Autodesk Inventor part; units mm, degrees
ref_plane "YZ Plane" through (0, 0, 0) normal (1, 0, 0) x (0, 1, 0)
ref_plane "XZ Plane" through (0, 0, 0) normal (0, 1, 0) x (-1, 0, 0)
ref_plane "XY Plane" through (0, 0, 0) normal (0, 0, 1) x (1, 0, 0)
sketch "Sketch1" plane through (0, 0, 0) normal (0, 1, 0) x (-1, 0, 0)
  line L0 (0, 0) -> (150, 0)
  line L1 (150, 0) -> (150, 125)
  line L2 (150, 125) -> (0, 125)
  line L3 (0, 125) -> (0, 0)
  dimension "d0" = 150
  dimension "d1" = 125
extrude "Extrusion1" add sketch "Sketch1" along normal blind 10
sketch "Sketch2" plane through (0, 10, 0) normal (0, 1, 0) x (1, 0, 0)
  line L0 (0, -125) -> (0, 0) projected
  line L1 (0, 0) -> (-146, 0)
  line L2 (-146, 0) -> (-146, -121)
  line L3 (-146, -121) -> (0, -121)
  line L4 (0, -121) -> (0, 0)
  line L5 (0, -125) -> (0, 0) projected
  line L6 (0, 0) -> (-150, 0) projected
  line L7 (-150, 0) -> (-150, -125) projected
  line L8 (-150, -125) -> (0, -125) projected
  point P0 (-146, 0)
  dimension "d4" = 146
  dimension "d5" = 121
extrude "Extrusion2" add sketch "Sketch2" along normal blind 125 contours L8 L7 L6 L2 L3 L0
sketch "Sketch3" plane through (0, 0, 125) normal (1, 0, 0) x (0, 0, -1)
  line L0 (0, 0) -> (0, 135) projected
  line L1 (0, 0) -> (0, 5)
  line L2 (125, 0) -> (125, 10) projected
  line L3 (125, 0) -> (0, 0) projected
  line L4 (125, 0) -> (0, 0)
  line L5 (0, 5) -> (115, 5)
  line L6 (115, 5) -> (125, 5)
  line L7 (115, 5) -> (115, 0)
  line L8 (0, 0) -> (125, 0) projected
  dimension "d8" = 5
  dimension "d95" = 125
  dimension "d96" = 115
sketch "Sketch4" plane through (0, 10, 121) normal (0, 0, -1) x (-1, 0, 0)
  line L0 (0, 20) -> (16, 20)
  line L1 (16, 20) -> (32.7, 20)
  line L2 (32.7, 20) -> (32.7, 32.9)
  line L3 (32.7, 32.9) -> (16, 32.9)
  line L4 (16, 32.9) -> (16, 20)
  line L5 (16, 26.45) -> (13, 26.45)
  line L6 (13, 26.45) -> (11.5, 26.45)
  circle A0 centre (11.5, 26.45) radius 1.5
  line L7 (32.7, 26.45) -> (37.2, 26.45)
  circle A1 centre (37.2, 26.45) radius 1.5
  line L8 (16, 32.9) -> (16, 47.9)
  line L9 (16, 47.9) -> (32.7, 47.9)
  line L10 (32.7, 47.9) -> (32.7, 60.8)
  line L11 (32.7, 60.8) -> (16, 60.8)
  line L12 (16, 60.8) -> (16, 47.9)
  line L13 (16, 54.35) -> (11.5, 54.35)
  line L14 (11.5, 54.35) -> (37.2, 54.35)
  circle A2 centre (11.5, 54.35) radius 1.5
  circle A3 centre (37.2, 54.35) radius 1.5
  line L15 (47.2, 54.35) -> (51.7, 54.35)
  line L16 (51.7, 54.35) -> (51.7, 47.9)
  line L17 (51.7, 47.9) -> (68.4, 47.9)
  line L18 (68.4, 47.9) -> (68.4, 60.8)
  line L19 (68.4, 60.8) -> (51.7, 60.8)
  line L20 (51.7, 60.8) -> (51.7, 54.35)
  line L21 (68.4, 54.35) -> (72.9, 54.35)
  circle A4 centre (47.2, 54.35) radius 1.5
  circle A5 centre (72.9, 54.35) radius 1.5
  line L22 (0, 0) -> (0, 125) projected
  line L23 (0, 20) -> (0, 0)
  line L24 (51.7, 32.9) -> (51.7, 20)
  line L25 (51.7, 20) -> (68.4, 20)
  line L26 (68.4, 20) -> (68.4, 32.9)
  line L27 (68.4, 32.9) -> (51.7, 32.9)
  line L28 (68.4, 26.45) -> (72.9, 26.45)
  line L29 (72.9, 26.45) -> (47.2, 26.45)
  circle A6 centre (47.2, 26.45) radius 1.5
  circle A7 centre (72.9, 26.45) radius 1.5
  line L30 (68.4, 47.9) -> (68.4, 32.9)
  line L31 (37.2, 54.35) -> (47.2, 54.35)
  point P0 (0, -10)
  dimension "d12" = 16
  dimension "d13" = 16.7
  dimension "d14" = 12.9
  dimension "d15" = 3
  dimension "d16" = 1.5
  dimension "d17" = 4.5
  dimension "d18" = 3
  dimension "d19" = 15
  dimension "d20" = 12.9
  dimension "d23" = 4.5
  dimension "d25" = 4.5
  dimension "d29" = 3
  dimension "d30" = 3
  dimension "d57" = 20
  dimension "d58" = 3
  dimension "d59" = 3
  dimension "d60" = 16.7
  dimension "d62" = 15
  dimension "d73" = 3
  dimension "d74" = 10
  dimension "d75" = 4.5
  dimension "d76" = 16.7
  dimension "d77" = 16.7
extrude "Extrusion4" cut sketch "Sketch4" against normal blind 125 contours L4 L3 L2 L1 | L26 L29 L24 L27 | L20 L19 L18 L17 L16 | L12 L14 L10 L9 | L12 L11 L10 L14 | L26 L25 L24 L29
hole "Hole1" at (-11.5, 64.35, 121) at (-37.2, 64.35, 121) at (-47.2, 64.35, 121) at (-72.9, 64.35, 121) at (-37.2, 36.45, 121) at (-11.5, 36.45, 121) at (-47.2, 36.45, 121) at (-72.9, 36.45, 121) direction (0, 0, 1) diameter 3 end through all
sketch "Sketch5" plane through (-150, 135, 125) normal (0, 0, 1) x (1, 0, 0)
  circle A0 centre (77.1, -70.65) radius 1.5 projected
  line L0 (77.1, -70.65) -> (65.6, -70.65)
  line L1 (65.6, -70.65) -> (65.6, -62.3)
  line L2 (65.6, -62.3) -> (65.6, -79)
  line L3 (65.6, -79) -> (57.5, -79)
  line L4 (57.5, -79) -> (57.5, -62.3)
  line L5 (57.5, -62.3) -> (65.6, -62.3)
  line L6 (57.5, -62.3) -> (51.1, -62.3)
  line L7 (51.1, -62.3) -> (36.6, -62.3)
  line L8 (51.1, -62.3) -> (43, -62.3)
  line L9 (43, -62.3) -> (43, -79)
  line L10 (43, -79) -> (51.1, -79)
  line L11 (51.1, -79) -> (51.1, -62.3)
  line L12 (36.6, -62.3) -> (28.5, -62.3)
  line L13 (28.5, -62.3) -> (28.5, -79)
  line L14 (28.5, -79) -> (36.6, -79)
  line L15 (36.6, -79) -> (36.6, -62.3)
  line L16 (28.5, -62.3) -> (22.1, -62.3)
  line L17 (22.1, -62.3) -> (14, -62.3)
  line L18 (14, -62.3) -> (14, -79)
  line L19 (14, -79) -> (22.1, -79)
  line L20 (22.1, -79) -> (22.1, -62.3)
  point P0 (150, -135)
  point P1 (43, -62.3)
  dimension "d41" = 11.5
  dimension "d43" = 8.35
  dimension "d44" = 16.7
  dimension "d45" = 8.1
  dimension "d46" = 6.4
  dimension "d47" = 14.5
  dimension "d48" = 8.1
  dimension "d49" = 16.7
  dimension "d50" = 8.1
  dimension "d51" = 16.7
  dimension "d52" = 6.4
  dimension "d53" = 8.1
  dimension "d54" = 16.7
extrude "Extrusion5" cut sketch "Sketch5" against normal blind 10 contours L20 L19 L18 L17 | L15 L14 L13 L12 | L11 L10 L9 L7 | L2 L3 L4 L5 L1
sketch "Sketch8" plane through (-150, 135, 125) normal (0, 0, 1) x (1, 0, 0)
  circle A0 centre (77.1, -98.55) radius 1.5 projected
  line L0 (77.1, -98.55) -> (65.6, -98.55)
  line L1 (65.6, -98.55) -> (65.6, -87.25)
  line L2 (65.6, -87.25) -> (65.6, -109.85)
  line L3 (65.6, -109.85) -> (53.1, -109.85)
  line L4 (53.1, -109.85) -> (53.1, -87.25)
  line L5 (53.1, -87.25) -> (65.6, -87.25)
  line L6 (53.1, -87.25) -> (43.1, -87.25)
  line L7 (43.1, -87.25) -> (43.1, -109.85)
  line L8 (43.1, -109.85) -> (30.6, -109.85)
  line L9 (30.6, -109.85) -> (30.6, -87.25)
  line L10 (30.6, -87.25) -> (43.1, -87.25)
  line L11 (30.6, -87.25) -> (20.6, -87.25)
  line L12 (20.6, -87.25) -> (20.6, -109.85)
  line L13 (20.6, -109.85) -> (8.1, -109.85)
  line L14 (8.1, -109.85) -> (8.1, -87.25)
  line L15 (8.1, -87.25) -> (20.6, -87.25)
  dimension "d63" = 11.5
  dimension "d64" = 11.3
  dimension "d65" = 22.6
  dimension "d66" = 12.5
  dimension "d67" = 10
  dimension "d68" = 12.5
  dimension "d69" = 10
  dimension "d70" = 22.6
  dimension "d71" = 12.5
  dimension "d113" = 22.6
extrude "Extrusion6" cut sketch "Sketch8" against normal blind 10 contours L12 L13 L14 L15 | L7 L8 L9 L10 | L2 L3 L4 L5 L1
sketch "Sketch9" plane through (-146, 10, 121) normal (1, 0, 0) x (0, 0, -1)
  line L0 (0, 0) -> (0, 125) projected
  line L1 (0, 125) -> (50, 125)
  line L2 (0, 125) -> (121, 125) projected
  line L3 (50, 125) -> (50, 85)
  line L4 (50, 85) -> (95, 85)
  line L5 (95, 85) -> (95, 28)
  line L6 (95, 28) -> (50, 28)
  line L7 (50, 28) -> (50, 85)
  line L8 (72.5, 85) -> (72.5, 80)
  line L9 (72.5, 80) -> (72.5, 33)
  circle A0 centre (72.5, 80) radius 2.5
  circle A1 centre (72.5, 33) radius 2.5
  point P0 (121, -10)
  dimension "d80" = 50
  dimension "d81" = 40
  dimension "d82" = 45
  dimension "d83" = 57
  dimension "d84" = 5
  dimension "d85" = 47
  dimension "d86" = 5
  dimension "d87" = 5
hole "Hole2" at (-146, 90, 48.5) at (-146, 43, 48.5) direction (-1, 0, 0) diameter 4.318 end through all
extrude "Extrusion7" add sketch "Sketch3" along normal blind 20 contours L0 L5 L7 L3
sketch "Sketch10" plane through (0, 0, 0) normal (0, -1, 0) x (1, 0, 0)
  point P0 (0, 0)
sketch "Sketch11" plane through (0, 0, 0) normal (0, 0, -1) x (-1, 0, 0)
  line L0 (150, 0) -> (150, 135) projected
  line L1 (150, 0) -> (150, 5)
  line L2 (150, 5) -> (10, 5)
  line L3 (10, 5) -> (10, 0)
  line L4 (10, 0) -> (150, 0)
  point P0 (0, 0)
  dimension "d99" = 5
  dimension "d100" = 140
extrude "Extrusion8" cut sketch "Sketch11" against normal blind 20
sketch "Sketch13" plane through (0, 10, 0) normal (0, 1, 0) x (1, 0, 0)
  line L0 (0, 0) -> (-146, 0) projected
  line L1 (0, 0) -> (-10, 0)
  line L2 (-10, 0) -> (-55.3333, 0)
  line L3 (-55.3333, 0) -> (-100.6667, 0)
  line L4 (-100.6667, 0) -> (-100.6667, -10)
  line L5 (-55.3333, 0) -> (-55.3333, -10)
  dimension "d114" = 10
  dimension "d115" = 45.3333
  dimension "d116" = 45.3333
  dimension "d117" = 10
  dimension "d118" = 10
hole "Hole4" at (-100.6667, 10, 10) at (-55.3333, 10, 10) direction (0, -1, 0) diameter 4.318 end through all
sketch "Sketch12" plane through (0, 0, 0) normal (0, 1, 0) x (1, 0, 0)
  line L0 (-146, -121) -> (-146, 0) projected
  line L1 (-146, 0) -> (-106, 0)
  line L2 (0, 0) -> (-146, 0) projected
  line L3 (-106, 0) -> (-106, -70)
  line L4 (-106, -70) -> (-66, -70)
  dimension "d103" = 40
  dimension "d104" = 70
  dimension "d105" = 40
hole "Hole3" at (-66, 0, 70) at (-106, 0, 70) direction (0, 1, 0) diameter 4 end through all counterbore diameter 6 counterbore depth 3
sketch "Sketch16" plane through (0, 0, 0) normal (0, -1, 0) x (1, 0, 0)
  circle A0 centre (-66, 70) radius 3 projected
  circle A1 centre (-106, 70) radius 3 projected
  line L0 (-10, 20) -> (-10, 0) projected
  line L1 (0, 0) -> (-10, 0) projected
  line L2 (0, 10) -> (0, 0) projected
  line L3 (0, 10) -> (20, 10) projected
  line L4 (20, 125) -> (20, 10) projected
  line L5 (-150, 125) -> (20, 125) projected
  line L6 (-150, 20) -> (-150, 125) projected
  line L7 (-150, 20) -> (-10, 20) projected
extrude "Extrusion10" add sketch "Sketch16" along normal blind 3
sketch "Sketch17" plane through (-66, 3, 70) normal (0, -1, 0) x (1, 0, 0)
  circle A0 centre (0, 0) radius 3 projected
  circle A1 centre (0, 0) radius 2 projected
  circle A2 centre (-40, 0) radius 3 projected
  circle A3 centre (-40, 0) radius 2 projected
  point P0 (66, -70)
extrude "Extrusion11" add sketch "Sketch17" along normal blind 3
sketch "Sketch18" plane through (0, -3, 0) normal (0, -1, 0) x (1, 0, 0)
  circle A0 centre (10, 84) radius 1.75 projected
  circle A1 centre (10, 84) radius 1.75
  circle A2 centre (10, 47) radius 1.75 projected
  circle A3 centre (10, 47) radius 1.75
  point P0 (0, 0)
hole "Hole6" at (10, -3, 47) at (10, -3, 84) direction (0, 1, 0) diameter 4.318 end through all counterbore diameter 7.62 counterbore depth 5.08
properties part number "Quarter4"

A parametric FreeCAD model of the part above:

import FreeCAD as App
import Part
import Sketcher

V = App.Vector

doc = App.newDocument("Part")
body = doc.addObject("PartDesign::Body", "Body")

# Sketch on XZ plane
sketch1 = doc.addObject("Sketcher::SketchObject", "Sketch")
body.addObject(sketch1)
sketch1.AttachmentSupport = (doc.XZ_Plane, [""])
sketch1.MapMode = "FlatFace"
sketch1.addGeometry([
    Part.LineSegment(V(0, 125, 0), V(0, 0, 0)),
    Part.LineSegment(V(0, 0, 0), V(-150, 0, 0)),
    Part.LineSegment(V(-150, 0, 0), V(-150, 125, 0)),
    Part.LineSegment(V(-150, 125, 0), V(0, 125, 0)),
], False)
sketch1.addConstraint([
    Sketcher.Constraint("Coincident", 0, 2, 1, 1),
    Sketcher.Constraint("Coincident", 1, 2, 2, 1),
    Sketcher.Constraint("Coincident", 2, 2, 3, 1),
    Sketcher.Constraint("Coincident", 3, 2, 0, 1),
    Sketcher.Constraint("Vertical", 0),
    Sketcher.Constraint("Horizontal", 1),
    Sketcher.Constraint("Vertical", 2),
    Sketcher.Constraint("Horizontal", 3),
    Sketcher.Constraint("Coincident", 0, 2, -1, 1),
    Sketcher.Constraint("DistanceX", 1, 2, 1, 1, 150.0),
    Sketcher.Constraint("DistanceY", 0, 2, 0, 1, 125.0),
])
pad1 = doc.addObject("PartDesign::Pad", "Pad")
body.addObject(pad1)
pad1.Profile = sketch1
pad1.Length = 10
pad1.Reversed = True

# Sketch on XZ plane
sketch2 = doc.addObject("Sketcher::SketchObject", "Sketch001")
body.addObject(sketch2)
sketch2.AttachmentSupport = (doc.XZ_Plane, [""])
sketch2.MapMode = "FlatFace"
sketch2.AttachmentOffset = App.Placement(V(0, 0, -10), App.Rotation())
sketch2.addGeometry([
    Part.LineSegment(V(-150, 125, 0), V(0, 125, 0)),  # 0
    Part.LineSegment(V(0, 125, 0), V(0, 121, 0)),  # 1
    Part.LineSegment(V(0, 121, 0), V(-146, 121, 0)),  # 2
    Part.LineSegment(V(-146, 121, 0), V(-146, 0, 0)),  # 3
    Part.LineSegment(V(-146, 0, 0), V(-150, 0, 0)),  # 4
    Part.LineSegment(V(-150, 0, 0), V(-150, 125, 0)),  # 5
], False)
sketch2.addConstraint([
    Sketcher.Constraint("Coincident", 0, 2, 1, 1),
    Sketcher.Constraint("Coincident", 1, 2, 2, 1),
    Sketcher.Constraint("Coincident", 2, 2, 3, 1),
    Sketcher.Constraint("Coincident", 3, 2, 4, 1),
    Sketcher.Constraint("Coincident", 4, 2, 5, 1),
    Sketcher.Constraint("Coincident", 5, 2, 0, 1),
    Sketcher.Constraint("Horizontal", 0),
    Sketcher.Constraint("Vertical", 1),
    Sketcher.Constraint("Horizontal", 2),
    Sketcher.Constraint("Vertical", 3),
    Sketcher.Constraint("Horizontal", 4),
    Sketcher.Constraint("Vertical", 5),
    Sketcher.Constraint("PointOnObject", 0, 2, -2),
    Sketcher.Constraint("PointOnObject", 3, 2, -1),
    Sketcher.Constraint("Equal", 4, 1),
    Sketcher.Constraint("DistanceX", 2, 2, 2, 1, 146.0),
    Sketcher.Constraint("DistanceY", 3, 2, 3, 1, 121.0),
    Sketcher.Constraint("DistanceX", 0, 1, 0, 2, 150.0),
])
pad2 = doc.addObject("PartDesign::Pad", "Pad001")
body.addObject(pad2)
pad2.Profile = sketch2
pad2.Length = 125
pad2.Reversed = True

# Sketch on XY plane
sketch3 = doc.addObject("Sketcher::SketchObject", "Sketch002")
body.addObject(sketch3)
sketch3.AttachmentSupport = (doc.XY_Plane, [""])
sketch3.MapMode = "FlatFace"
sketch3.AttachmentOffset = App.Placement(V(0, 0, 121), App.Rotation())
sketch3.addGeometry([
    Part.LineSegment(V(-16, 43, 0), V(-16, 30, 0)),  # 0
    Part.LineSegment(V(-16, 30, 0), V(-33, 30, 0)),  # 1
    Part.LineSegment(V(-33, 30, 0), V(-33, 43, 0)),  # 2
    Part.LineSegment(V(-33, 43, 0), V(-16, 43, 0)),  # 3
    Part.LineSegment(V(-68, 43, 0), V(-52, 43, 0)),  # 4
    Part.LineSegment(V(-52, 43, 0), V(-52, 30, 0)),  # 5
    Part.LineSegment(V(-52, 30, 0), V(-68, 30, 0)),  # 6
    Part.LineSegment(V(-68, 30, 0), V(-68, 43, 0)),  # 7
    Part.LineSegment(V(-52, 71, 0), V(-52, 58, 0)),  # 8
    Part.LineSegment(V(-52, 58, 0), V(-68, 58, 0)),  # 9
    Part.LineSegment(V(-68, 58, 0), V(-68, 71, 0)),  # 10
    Part.LineSegment(V(-68, 71, 0), V(-52, 71, 0)),  # 11
    Part.LineSegment(V(-16, 58, 0), V(-33, 58, 0)),  # 12
    Part.LineSegment(V(-33, 58, 0), V(-33, 71, 0)),  # 13
    Part.LineSegment(V(-33, 71, 0), V(-16, 71, 0)),  # 14
    Part.LineSegment(V(-16, 71, 0), V(-16, 58, 0)),  # 15
], False)
sketch3.addConstraint([
    Sketcher.Constraint("Coincident", 0, 2, 1, 1),
    Sketcher.Constraint("Coincident", 1, 2, 2, 1),
    Sketcher.Constraint("Coincident", 2, 2, 3, 1),
    Sketcher.Constraint("Coincident", 3, 2, 0, 1),
    Sketcher.Constraint("Coincident", 4, 2, 5, 1),
    Sketcher.Constraint("Coincident", 5, 2, 6, 1),
    Sketcher.Constraint("Coincident", 6, 2, 7, 1),
    Sketcher.Constraint("Coincident", 7, 2, 4, 1),
    Sketcher.Constraint("Coincident", 8, 2, 9, 1),
    Sketcher.Constraint("Coincident", 9, 2, 10, 1),
    Sketcher.Constraint("Coincident", 10, 2, 11, 1),
    Sketcher.Constraint("Coincident", 11, 2, 8, 1),
    Sketcher.Constraint("Coincident", 12, 2, 13, 1),
    Sketcher.Constraint("Coincident", 13, 2, 14, 1),
    Sketcher.Constraint("Coincident", 14, 2, 15, 1),
    Sketcher.Constraint("Coincident", 15, 2, 12, 1),
    Sketcher.Constraint("Vertical", 0),
    Sketcher.Constraint("Horizontal", 1),
    Sketcher.Constraint("Vertical", 2),
    Sketcher.Constraint("Horizontal", 3),
    Sketcher.Constraint("Horizontal", 4),
    Sketcher.Constraint("Vertical", 5),
    Sketcher.Constraint("Horizontal", 6),
    Sketcher.Constraint("Vertical", 7),
    Sketcher.Constraint("Vertical", 8),
    Sketcher.Constraint("Horizontal", 9),
    Sketcher.Constraint("Vertical", 10),
    Sketcher.Constraint("Horizontal", 11),
    Sketcher.Constraint("Horizontal", 12),
    Sketcher.Constraint("Vertical", 13),
    Sketcher.Constraint("Horizontal", 14),
    Sketcher.Constraint("Vertical", 15),
    Sketcher.Constraint("Horizontal", 3, 2, 4, 2),
    Sketcher.Constraint("Horizontal", 1, 2, 5, 2),
    Sketcher.Constraint("Horizontal", 9, 2, 12, 2),
    Sketcher.Constraint("Horizontal", 11, 2, 13, 2),
    Sketcher.Constraint("Vertical", 5, 2, 8, 2),
    Sketcher.Constraint("Vertical", 7, 2, 9, 2),
    Sketcher.Constraint("Vertical", 2, 2, 12, 2),
    Sketcher.Constraint("Vertical", 3, 2, 14, 2),
    Sketcher.Constraint("Equal", 3, 4),
    Sketcher.Constraint("Equal", 7, 8),
    Sketcher.Constraint("DistanceX", 1, 2, 1, 1, 16.7),
    Sketcher.Constraint("DistanceY", 0, 2, 0, 1, 12.9),
    Sketcher.Constraint("DistanceX", 0, 2, -1, 1, 16.0),
    Sketcher.Constraint("DistanceY", 4, 2, 8, 2, 15.0),
    Sketcher.Constraint("DistanceY", -1, 1, 0, 2, 30.0),
    Sketcher.Constraint("DistanceX", 4, 2, 2, 2, 19.0),
])
pocket1 = doc.addObject("PartDesign::Pocket", "Pocket")
body.addObject(pocket1)
pocket1.Profile = sketch3
pocket1.Length = 125
pocket1.Reversed = True

# Sketch on XY plane
sketch4 = doc.addObject("Sketcher::SketchObject", "Sketch003")
body.addObject(sketch4)
sketch4.AttachmentSupport = (doc.XY_Plane, [""])
sketch4.MapMode = "FlatFace"
sketch4.AttachmentOffset = App.Placement(V(0, 0, 121), App.Rotation())
sketch4.addGeometry([
    Part.Circle(V(-11.5, 64.3, 0), V(0, 0, 1), 1.5),  # 0
    Part.Circle(V(-37.2, 64.3, 0), V(0, 0, 1), 1.5),  # 1
    Part.Circle(V(-47.2, 64.3, 0), V(0, 0, 1), 1.5),  # 2
    Part.Circle(V(-72.9, 64.3, 0), V(0, 0, 1), 1.5),  # 3
    Part.Circle(V(-37.2, 36.5, 0), V(0, 0, 1), 1.5),  # 4
    Part.Circle(V(-11.5, 36.5, 0), V(0, 0, 1), 1.5),  # 5
    Part.Circle(V(-47.2, 36.5, 0), V(0, 0, 1), 1.5),  # 6
    Part.Circle(V(-72.9, 36.5, 0), V(0, 0, 1), 1.5),  # 7
], False)
sketch4.addConstraint([
    Sketcher.Constraint("Equal", 0, 1),
    Sketcher.Constraint("Equal", 1, 2),
    Sketcher.Constraint("Equal", 2, 3),
    Sketcher.Constraint("Equal", 3, 4),
    Sketcher.Constraint("Equal", 4, 5),
    Sketcher.Constraint("Equal", 5, 6),
    Sketcher.Constraint("Equal", 6, 7),
    Sketcher.Constraint("Horizontal", 0, 3, 1, 3),
    Sketcher.Constraint("Horizontal", 1, 3, 2, 3),
    Sketcher.Constraint("Horizontal", 2, 3, 3, 3),
    Sketcher.Constraint("Horizontal", 4, 3, 5, 3),
    Sketcher.Constraint("Horizontal", 5, 3, 6, 3),
    Sketcher.Constraint("Horizontal", 6, 3, 7, 3),
    Sketcher.Constraint("Vertical", 1, 3, 4, 3),
    Sketcher.Constraint("Vertical", 0, 3, 5, 3),
    Sketcher.Constraint("Vertical", 2, 3, 6, 3),
    Sketcher.Constraint("Vertical", 3, 3, 7, 3),
    Sketcher.Constraint("Diameter", 0, 3.0),
    Sketcher.Constraint("DistanceX", 2, 3, 1, 3, 10.0),
    Sketcher.Constraint("DistanceX", 0, 3, -1, 1, 11.5),
    Sketcher.Constraint("DistanceX", 1, 3, -1, 1, 37.2),
    Sketcher.Constraint("DistanceX", 3, 3, -1, 1, 72.9),
    Sketcher.Constraint("DistanceY", 4, 3, 1, 3, 27.9),
    Sketcher.Constraint("DistanceY", -1, 1, 0, 3, 64.35),
])
doc.recompute()
hole = doc.addObject("PartDesign::Hole", "Hole")
body.addObject(hole)
hole.Profile = sketch4
hole.ThreadType = "None"
hole.Diameter = 3
hole.DepthType = "ThroughAll"
hole.Reversed = True

# Sketch on XY plane
sketch5 = doc.addObject("Sketcher::SketchObject", "Sketch004")
body.addObject(sketch5)
sketch5.AttachmentSupport = (doc.XY_Plane, [""])
sketch5.MapMode = "FlatFace"
sketch5.AttachmentOffset = App.Placement(V(0, 0, 125), App.Rotation())
sketch5.addGeometry([
    Part.LineSegment(V(-128, 56, 0), V(-128, 73, 0)),  # 0
    Part.LineSegment(V(-128, 73, 0), V(-136, 73, 0)),  # 1
    Part.LineSegment(V(-136, 73, 0), V(-136, 56, 0)),  # 2
    Part.LineSegment(V(-136, 56, 0), V(-128, 56, 0)),  # 3
    Part.LineSegment(V(-113, 56, 0), V(-113, 73, 0)),  # 4
    Part.LineSegment(V(-113, 73, 0), V(-122, 73, 0)),  # 5
    Part.LineSegment(V(-122, 73, 0), V(-122, 56, 0)),  # 6
    Part.LineSegment(V(-122, 56, 0), V(-113, 56, 0)),  # 7
    Part.LineSegment(V(-99, 56, 0), V(-99, 73, 0)),  # 8
    Part.LineSegment(V(-99, 73, 0), V(-107, 73, 0)),  # 9
    Part.LineSegment(V(-107, 73, 0), V(-107, 56, 0)),  # 10
    Part.LineSegment(V(-107, 56, 0), V(-99, 56, 0)),  # 11
    Part.LineSegment(V(-84, 56, 0), V(-84, 73, 0)),  # 12
    Part.LineSegment(V(-84, 73, 0), V(-92, 73, 0)),  # 13
    Part.LineSegment(V(-92, 73, 0), V(-92, 56, 0)),  # 14
    Part.LineSegment(V(-92, 56, 0), V(-84, 56, 0)),  # 15
], False)
sketch5.addConstraint([
    Sketcher.Constraint("Coincident", 0, 2, 1, 1),
    Sketcher.Constraint("Coincident", 1, 2, 2, 1),
    Sketcher.Constraint("Coincident", 2, 2, 3, 1),
    Sketcher.Constraint("Coincident", 3, 2, 0, 1),
    Sketcher.Constraint("Coincident", 4, 2, 5, 1),
    Sketcher.Constraint("Coincident", 5, 2, 6, 1),
    Sketcher.Constraint("Coincident", 6, 2, 7, 1),
    Sketcher.Constraint("Coincident", 7, 2, 4, 1),
    Sketcher.Constraint("Coincident", 8, 2, 9, 1),
    Sketcher.Constraint("Coincident", 9, 2, 10, 1),
    Sketcher.Constraint("Coincident", 10, 2, 11, 1),
    Sketcher.Constraint("Coincident", 11, 2, 8, 1),
    Sketcher.Constraint("Coincident", 12, 2, 13, 1),
    Sketcher.Constraint("Coincident", 13, 2, 14, 1),
    Sketcher.Constraint("Coincident", 14, 2, 15, 1),
    Sketcher.Constraint("Coincident", 15, 2, 12, 1),
    Sketcher.Constraint("Vertical", 0),
    Sketcher.Constraint("Horizontal", 1),
    Sketcher.Constraint("Vertical", 2),
    Sketcher.Constraint("Horizontal", 3),
    Sketcher.Constraint("Vertical", 4),
    Sketcher.Constraint("Horizontal", 5),
    Sketcher.Constraint("Vertical", 6),
    Sketcher.Constraint("Horizontal", 7),
    Sketcher.Constraint("Vertical", 8),
    Sketcher.Constraint("Horizontal", 9),
    Sketcher.Constraint("Vertical", 10),
    Sketcher.Constraint("Horizontal", 11),
    Sketcher.Constraint("Vertical", 12),
    Sketcher.Constraint("Horizontal", 13),
    Sketcher.Constraint("Vertical", 14),
    Sketcher.Constraint("Horizontal", 15),
    Sketcher.Constraint("Horizontal", 1, 2, 4, 2),
    Sketcher.Constraint("Horizontal", 3, 2, 6, 2),
    Sketcher.Constraint("Horizontal", 5, 2, 8, 2),
    Sketcher.Constraint("Horizontal", 7, 2, 10, 2),
    Sketcher.Constraint("Horizontal", 9, 2, 12, 2),
    Sketcher.Constraint("Horizontal", 11, 2, 14, 2),
    Sketcher.Constraint("Equal", 3, 5),
    Sketcher.Constraint("Equal", 7, 9),
    Sketcher.Constraint("Equal", 11, 13),
    Sketcher.Constraint("DistanceX", 1, 2, 1, 1, 8.1),
    Sketcher.Constraint("DistanceY", 0, 1, 0, 2, 16.7),
    Sketcher.Constraint("DistanceX", 0, 2, 4, 2, 14.5),
    Sketcher.Constraint("DistanceX", 4, 2, 8, 2, 14.5),
    Sketcher.Constraint("DistanceX", 8, 2, 12, 2, 14.5),
    Sketcher.Constraint("DistanceX", 1, 2, -1, 1, 136.0),
    Sketcher.Constraint("DistanceY", -1, 1, 2, 2, 56.0),
])
pocket2 = doc.addObject("PartDesign::Pocket", "Pocket001")
body.addObject(pocket2)
pocket2.Profile = sketch5
pocket2.Length = 10

# Sketch on XY plane
sketch6 = doc.addObject("Sketcher::SketchObject", "Sketch005")
body.addObject(sketch6)
sketch6.AttachmentSupport = (doc.XY_Plane, [""])
sketch6.MapMode = "FlatFace"
sketch6.AttachmentOffset = App.Placement(V(0, 0, 125), App.Rotation())
sketch6.addGeometry([
    Part.LineSegment(V(-129, 25, 0), V(-129, 48, 0)),  # 0
    Part.LineSegment(V(-129, 48, 0), V(-142, 48, 0)),  # 1
    Part.LineSegment(V(-142, 48, 0), V(-142, 25, 0)),  # 2
    Part.LineSegment(V(-142, 25, 0), V(-129, 25, 0)),  # 3
    Part.LineSegment(V(-107, 25, 0), V(-107, 48, 0)),  # 4
    Part.LineSegment(V(-107, 48, 0), V(-119, 48, 0)),  # 5
    Part.LineSegment(V(-119, 48, 0), V(-119, 25, 0)),  # 6
    Part.LineSegment(V(-119, 25, 0), V(-107, 25, 0)),  # 7
    Part.LineSegment(V(-84, 25, 0), V(-84, 48, 0)),  # 8
    Part.LineSegment(V(-84, 48, 0), V(-97, 48, 0)),  # 9
    Part.LineSegment(V(-97, 48, 0), V(-97, 25, 0)),  # 10
    Part.LineSegment(V(-97, 25, 0), V(-84, 25, 0)),  # 11
], False)
sketch6.addConstraint([
    Sketcher.Constraint("Coincident", 0, 2, 1, 1),
    Sketcher.Constraint("Coincident", 1, 2, 2, 1),
    Sketcher.Constraint("Coincident", 2, 2, 3, 1),
    Sketcher.Constraint("Coincident", 3, 2, 0, 1),
    Sketcher.Constraint("Coincident", 4, 2, 5, 1),
    Sketcher.Constraint("Coincident", 5, 2, 6, 1),
    Sketcher.Constraint("Coincident", 6, 2, 7, 1),
    Sketcher.Constraint("Coincident", 7, 2, 4, 1),
    Sketcher.Constraint("Coincident", 8, 2, 9, 1),
    Sketcher.Constraint("Coincident", 9, 2, 10, 1),
    Sketcher.Constraint("Coincident", 10, 2, 11, 1),
    Sketcher.Constraint("Coincident", 11, 2, 8, 1),
    Sketcher.Constraint("Vertical", 0),
    Sketcher.Constraint("Horizontal", 1),
    Sketcher.Constraint("Vertical", 2),
    Sketcher.Constraint("Horizontal", 3),
    Sketcher.Constraint("Vertical", 4),
    Sketcher.Constraint("Horizontal", 5),
    Sketcher.Constraint("Vertical", 6),
    Sketcher.Constraint("Horizontal", 7),
    Sketcher.Constraint("Vertical", 8),
    Sketcher.Constraint("Horizontal", 9),
    Sketcher.Constraint("Vertical", 10),
    Sketcher.Constraint("Horizontal", 11),
    Sketcher.Constraint("Horizontal", 1, 2, 4, 2),
    Sketcher.Constraint("Horizontal", 3, 2, 6, 2),
    Sketcher.Constraint("Horizontal", 5, 2, 8, 2),
    Sketcher.Constraint("Horizontal", 7, 2, 10, 2),
    Sketcher.Constraint("Equal", 3, 5),
    Sketcher.Constraint("Equal", 7, 9),
    Sketcher.Constraint("DistanceX", 1, 2, 1, 1, 12.5),
    Sketcher.Constraint("DistanceY", 0, 1, 0, 2, 22.6),
    Sketcher.Constraint("DistanceX", 0, 2, 5, 2, 10.0),
    Sketcher.Constraint("DistanceX", 4, 2, 9, 2, 10.0),
    Sketcher.Constraint("DistanceX", 0, 2, -1, 1, 129.4),
    Sketcher.Constraint("DistanceY", -1, 1, 0, 2, 47.75),
])
pocket3 = doc.addObject("PartDesign::Pocket", "Pocket002")
body.addObject(pocket3)
pocket3.Profile = sketch6
pocket3.Length = 10

# Sketch on YZ plane
sketch7 = doc.addObject("Sketcher::SketchObject", "Sketch006")
body.addObject(sketch7)
sketch7.AttachmentSupport = (doc.YZ_Plane, [""])
sketch7.MapMode = "FlatFace"
sketch7.AttachmentOffset = App.Placement(V(0, 0, -146), App.Rotation())
sketch7.addGeometry([
    Part.Circle(V(90, 48.5, 0), V(0, 0, 1), 2.2),
    Part.Circle(V(43, 48.5, 0), V(0, 0, 1), 2.2),
], False)
sketch7.addConstraint([
    Sketcher.Constraint("Equal", 0, 1),
    Sketcher.Constraint("Horizontal", 0, 3, 1, 3),
    Sketcher.Constraint("Diameter", 0, 4.318),
    Sketcher.Constraint("DistanceX", -1, 1, 0, 3, 90.0),
    Sketcher.Constraint("DistanceX", -1, 1, 1, 3, 43.0),
    Sketcher.Constraint("DistanceY", -1, 1, 0, 3, 48.5),
])
doc.recompute()
hole2 = doc.addObject("PartDesign::Hole", "Hole001")
body.addObject(hole2)
hole2.Profile = sketch7
hole2.ThreadType = "None"
hole2.Diameter = 4.318
hole2.DepthType = "ThroughAll"

# Sketch on YZ plane
sketch8 = doc.addObject("Sketcher::SketchObject", "Sketch007")
body.addObject(sketch8)
sketch8.AttachmentSupport = (doc.YZ_Plane, [""])
sketch8.MapMode = "FlatFace"
sketch8.addGeometry([
    Part.LineSegment(V(5, 125, 0), V(0, 125, 0)),
    Part.LineSegment(V(0, 125, 0), V(0, 10, 0)),
    Part.LineSegment(V(0, 10, 0), V(5, 10, 0)),
    Part.LineSegment(V(5, 10, 0), V(5, 125, 0)),
], False)
sketch8.addConstraint([
    Sketcher.Constraint("Coincident", 0, 2, 1, 1),
    Sketcher.Constraint("Coincident", 1, 2, 2, 1),
    Sketcher.Constraint("Coincident", 2, 2, 3, 1),
    Sketcher.Constraint("Coincident", 3, 2, 0, 1),
    Sketcher.Constraint("Horizontal", 0),
    Sketcher.Constraint("Vertical", 1),
    Sketcher.Constraint("Horizontal", 2),
    Sketcher.Constraint("Vertical", 3),
    Sketcher.Constraint("PointOnObject", 0, 2, -2),
    Sketcher.Constraint("DistanceX", 0, 2, 0, 1, 5.0),
    Sketcher.Constraint("DistanceY", 1, 2, 1, 1, 115.0),
    Sketcher.Constraint("DistanceY", -1, 1, 0, 2, 125.0),
])
pad3 = doc.addObject("PartDesign::Pad", "Pad002")
body.addObject(pad3)
pad3.Profile = sketch8
pad3.Length = 20

# Sketch on XY plane
sketch9 = doc.addObject("Sketcher::SketchObject", "Sketch008")
body.addObject(sketch9)
sketch9.AttachmentSupport = (doc.XY_Plane, [""])
sketch9.MapMode = "FlatFace"
sketch9.addGeometry([
    Part.LineSegment(V(-10, 0, 0), V(-150, 0, 0)),
    Part.LineSegment(V(-150, 0, 0), V(-150, 5, 0)),
    Part.LineSegment(V(-150, 5, 0), V(-10, 5, 0)),
    Part.LineSegment(V(-10, 5, 0), V(-10, 0, 0)),
], False)
sketch9.addConstraint([
    Sketcher.Constraint("Coincident", 0, 2, 1, 1),
    Sketcher.Constraint("Coincident", 1, 2, 2, 1),
    Sketcher.Constraint("Coincident", 2, 2, 3, 1),
    Sketcher.Constraint("Coincident", 3, 2, 0, 1),
    Sketcher.Constraint("Horizontal", 0),
    Sketcher.Constraint("Vertical", 1),
    Sketcher.Constraint("Horizontal", 2),
    Sketcher.Constraint("Vertical", 3),
    Sketcher.Constraint("PointOnObject", 0, 2, -1),
    Sketcher.Constraint("DistanceX", 0, 2, 0, 1, 140.0),
    Sketcher.Constraint("DistanceY", 1, 1, 1, 2, 5.0),
    Sketcher.Constraint("DistanceX", 0, 2, -1, 1, 150.0),
])
pocket4 = doc.addObject("PartDesign::Pocket", "Pocket003")
body.addObject(pocket4)
pocket4.Profile = sketch9
pocket4.Length = 20
pocket4.Reversed = True

# Sketch on XZ plane
sketch10 = doc.addObject("Sketcher::SketchObject", "Sketch009")
body.addObject(sketch10)
sketch10.AttachmentSupport = (doc.XZ_Plane, [""])
sketch10.MapMode = "FlatFace"
sketch10.AttachmentOffset = App.Placement(V(0, 0, -10), App.Rotation())
sketch10.addGeometry([
    Part.Circle(V(-100.7, 10, 0), V(0, 0, 1), 2.2),
    Part.Circle(V(-55.3, 10, 0), V(0, 0, 1), 2.2),
], False)
sketch10.addConstraint([
    Sketcher.Constraint("Equal", 0, 1),
    Sketcher.Constraint("Horizontal", 0, 3, 1, 3),
    Sketcher.Constraint("Diameter", 0, 4.318),
    Sketcher.Constraint("DistanceY", -1, 1, 0, 3, 10.0),
    Sketcher.Constraint("DistanceX", 0, 3, -1, 1, 100.6667),
    Sketcher.Constraint("DistanceX", 1, 3, -1, 1, 55.3333),
])
doc.recompute()
hole3 = doc.addObject("PartDesign::Hole", "Hole002")
body.addObject(hole3)
hole3.Profile = sketch10
hole3.ThreadType = "None"
hole3.Diameter = 4.318
hole3.DepthType = "ThroughAll"
hole3.Reversed = True

# Sketch on XZ plane
sketch11 = doc.addObject("Sketcher::SketchObject", "Sketch010")
body.addObject(sketch11)
sketch11.AttachmentSupport = (doc.XZ_Plane, [""])
sketch11.MapMode = "FlatFace"
sketch11.addGeometry([
    Part.Circle(V(-66, 70, 0), V(0, 0, 1), 2),
    Part.Circle(V(-106, 70, 0), V(0, 0, 1), 2),
], False)
sketch11.addConstraint([
    Sketcher.Constraint("Equal", 0, 1),
    Sketcher.Constraint("Horizontal", 0, 3, 1, 3),
    Sketcher.Constraint("Diameter", 0, 4.0),
    Sketcher.Constraint("DistanceX", 0, 3, -1, 1, 66.0),
    Sketcher.Constraint("DistanceY", -1, 1, 0, 3, 70.0),
    Sketcher.Constraint("DistanceX", 1, 3, -1, 1, 106.0),
])
doc.recompute()
hole4 = doc.addObject("PartDesign::Hole", "Hole003")
body.addObject(hole4)
hole4.Profile = sketch11
hole4.ThreadType = "None"
hole4.Diameter = 4
hole4.DepthType = "ThroughAll"
hole4.HoleCutType = "Counterbore"
hole4.HoleCutDiameter = 6
hole4.HoleCutDepth = 3

# Sketch on XZ plane
sketch12 = doc.addObject("Sketcher::SketchObject", "Sketch011")
body.addObject(sketch12)
sketch12.AttachmentSupport = (doc.XZ_Plane, [""])
sketch12.MapMode = "FlatFace"
sketch12.addGeometry([
    Part.LineSegment(V(-150, 20, 0), V(-10, 20, 0)),  # 0
    Part.LineSegment(V(-10, 20, 0), V(-10, 0, 0)),  # 1
    Part.LineSegment(V(-10, 0, 0), V(0, 0, 0)),  # 2
    Part.LineSegment(V(0, 0, 0), V(0, 10, 0)),  # 3
    Part.LineSegment(V(0, 10, 0), V(20, 10, 0)),  # 4
    Part.LineSegment(V(20, 10, 0), V(20, 125, 0)),  # 5
    Part.LineSegment(V(20, 125, 0), V(-150, 125, 0)),  # 6
    Part.LineSegment(V(-150, 125, 0), V(-150, 20, 0)),  # 7
    Part.Circle(V(-106, 70, 0), V(0, 0, 1), 3),  # 8
    Part.Circle(V(-66, 70, 0), V(0, 0, 1), 3),  # 9
], False)
sketch12.addConstraint([
    Sketcher.Constraint("Coincident", 0, 2, 1, 1),
    Sketcher.Constraint("Coincident", 1, 2, 2, 1),
    Sketcher.Constraint("Coincident", 2, 2, 3, 1),
    Sketcher.Constraint("Coincident", 3, 2, 4, 1),
    Sketcher.Constraint("Coincident", 4, 2, 5, 1),
    Sketcher.Constraint("Coincident", 5, 2, 6, 1),
    Sketcher.Constraint("Coincident", 6, 2, 7, 1),
    Sketcher.Constraint("Coincident", 7, 2, 0, 1),
    Sketcher.Constraint("Horizontal", 0),
    Sketcher.Constraint("Vertical", 1),
    Sketcher.Constraint("Horizontal", 2),
    Sketcher.Constraint("Vertical", 3),
    Sketcher.Constraint("Horizontal", 4),
    Sketcher.Constraint("Vertical", 5),
    Sketcher.Constraint("Horizontal", 6),
    Sketcher.Constraint("Vertical", 7),
    Sketcher.Constraint("Coincident", 2, 2, -1, 1),
    Sketcher.Constraint("Equal", 8, 9),
    Sketcher.Constraint("Horizontal", 8, 3, 9, 3),
    Sketcher.Constraint("Equal", 4, 1),
    Sketcher.Constraint("Equal", 2, 3),
    Sketcher.Constraint("Diameter", 8, 6.0),
    Sketcher.Constraint("DistanceX", 0, 1, 0, 2, 140.0),
    Sketcher.Constraint("DistanceX", 2, 1, 2, 2, 10.0),
    Sketcher.Constraint("DistanceX", 4, 1, 4, 2, 20.0),
    Sketcher.Constraint("DistanceY", 5, 1, 5, 2, 115.0),
    Sketcher.Constraint("DistanceX", 8, 3, -1, 1, 106.0),
    Sketcher.Constraint("DistanceY", -1, 1, 8, 3, 70.0),
    Sketcher.Constraint("DistanceX", 9, 3, -1, 1, 66.0),
])
pad4 = doc.addObject("PartDesign::Pad", "Pad003")
body.addObject(pad4)
pad4.Profile = sketch12
pad4.Length = 3

# Sketch on XZ plane
sketch13 = doc.addObject("Sketcher::SketchObject", "Sketch012")
body.addObject(sketch13)
sketch13.AttachmentSupport = (doc.XZ_Plane, [""])
sketch13.MapMode = "FlatFace"
sketch13.AttachmentOffset = App.Placement(V(0, 0, -3), App.Rotation())
sketch13.addGeometry([
    Part.Circle(V(-66, 70, 0), V(0, 0, 1), 3),
    Part.Circle(V(-66, 70, 0), V(0, 0, 1), 2),
    Part.Circle(V(-106, 70, 0), V(0, 0, 1), 3),
    Part.Circle(V(-106, 70, 0), V(0, 0, 1), 2),
], False)
sketch13.addConstraint([
    Sketcher.Constraint("Coincident", 1, 3, 0, 3),
    Sketcher.Constraint("Coincident", 3, 3, 2, 3),
    Sketcher.Constraint("Equal", 0, 2),
    Sketcher.Constraint("Equal", 1, 3),
    Sketcher.Constraint("Horizontal", 1, 3, 2, 3),
    Sketcher.Constraint("Diameter", 0, 6.0),
    Sketcher.Constraint("Diameter", 1, 4.0),
    Sketcher.Constraint("DistanceX", 0, 3, -1, 1, 66.0),
    Sketcher.Constraint("DistanceY", -1, 1, 0, 3, 70.0),
    Sketcher.Constraint("DistanceX", 2, 3, -1, 1, 106.0),
])
pad5 = doc.addObject("PartDesign::Pad", "Pad004")
body.addObject(pad5)
pad5.Profile = sketch13
pad5.Length = 3

# Sketch on XZ plane
sketch14 = doc.addObject("Sketcher::SketchObject", "Sketch013")
body.addObject(sketch14)
sketch14.AttachmentSupport = (doc.XZ_Plane, [""])
sketch14.MapMode = "FlatFace"
sketch14.AttachmentOffset = App.Placement(V(0, 0, 3), App.Rotation())
sketch14.addGeometry([
    Part.Circle(V(10, 47, 0), V(0, 0, 1), 2.2),
    Part.Circle(V(10, 84, 0), V(0, 0, 1), 2.2),
], False)
sketch14.addConstraint([
    Sketcher.Constraint("Equal", 0, 1),
    Sketcher.Constraint("Vertical", 0, 3, 1, 3),
    Sketcher.Constraint("Diameter", 0, 4.318),
    Sketcher.Constraint("DistanceX", -1, 1, 0, 3, 10.0),
    Sketcher.Constraint("DistanceY", -1, 1, 0, 3, 47.0),
    Sketcher.Constraint("DistanceY", -1, 1, 1, 3, 84.0),
])
doc.recompute()
hole5 = doc.addObject("PartDesign::Hole", "Hole004")
body.addObject(hole5)
hole5.Profile = sketch14
hole5.ThreadType = "None"
hole5.Diameter = 4.318
hole5.DepthType = "ThroughAll"
hole5.HoleCutType = "Counterbore"
hole5.HoleCutDiameter = 7.62
hole5.HoleCutDepth = 5.08

doc.recompute()
